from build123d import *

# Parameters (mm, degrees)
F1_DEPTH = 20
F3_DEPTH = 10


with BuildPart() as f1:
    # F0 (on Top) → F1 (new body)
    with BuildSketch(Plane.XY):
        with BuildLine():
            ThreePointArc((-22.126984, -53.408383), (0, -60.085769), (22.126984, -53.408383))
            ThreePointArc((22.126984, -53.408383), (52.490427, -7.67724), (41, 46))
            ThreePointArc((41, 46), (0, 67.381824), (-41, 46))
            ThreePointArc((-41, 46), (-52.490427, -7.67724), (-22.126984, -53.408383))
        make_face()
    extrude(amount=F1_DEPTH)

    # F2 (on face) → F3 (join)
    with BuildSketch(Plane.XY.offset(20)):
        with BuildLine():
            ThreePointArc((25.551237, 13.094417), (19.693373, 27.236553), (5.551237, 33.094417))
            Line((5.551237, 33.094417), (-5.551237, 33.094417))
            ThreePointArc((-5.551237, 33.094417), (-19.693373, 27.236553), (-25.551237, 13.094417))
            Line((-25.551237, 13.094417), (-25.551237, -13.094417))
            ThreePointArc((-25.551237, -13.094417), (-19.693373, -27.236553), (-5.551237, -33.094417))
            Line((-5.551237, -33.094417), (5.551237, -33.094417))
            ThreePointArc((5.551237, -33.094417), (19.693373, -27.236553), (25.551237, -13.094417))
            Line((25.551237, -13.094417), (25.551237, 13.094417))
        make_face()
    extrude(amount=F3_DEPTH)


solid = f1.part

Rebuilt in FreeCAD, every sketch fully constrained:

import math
import FreeCAD as App
import Part
import Sketcher

V = App.Vector

doc = App.newDocument("Part")
body = doc.addObject("PartDesign::Body", "Body")

sketch1 = doc.addObject("Sketcher::SketchObject", "Sketch")
body.addObject(sketch1)
sketch1.AttachmentSupport = (doc.XY_Plane, [""])
sketch1.MapMode = "FlatFace"
sketch1.addGeometry(Part.ArcOfCircle(Part.Circle(V(0, -20, 0), V(0, 0, 1), 40), math.radians(-124), math.radians(-56)), False)
sketch1.addGeometry(Part.ArcOfCircle(Part.Circle(V(-17, 6, 0), V(0, 0, 1), 71), math.radians(-56), math.radians(35)), False)
sketch1.addGeometry(Part.ArcOfCircle(Part.Circle(V(0, 17, 0), V(0, 0, 1), 50), math.radians(35), math.radians(145)), False)
sketch1.addGeometry(Part.ArcOfCircle(Part.Circle(V(17, 6, 0), V(0, 0, 1), 71), math.radians(145), math.radians(236)), False)
sketch1.addConstraint(Sketcher.Constraint("Tangent", 0, 2, 1, 1))
sketch1.addConstraint(Sketcher.Constraint("Tangent", 1, 2, 2, 1))
sketch1.addConstraint(Sketcher.Constraint("Tangent", 2, 2, 3, 1))
sketch1.addConstraint(Sketcher.Constraint("Tangent", 3, 2, 0, 1))
sketch1.addConstraint(Sketcher.Constraint("Equal", 1, 3))
sketch1.addConstraint(Sketcher.Constraint("Symmetric", 1, 3, 3, 3, -2))
sketch1.addConstraint(Sketcher.Constraint("Radius", 0, 40.000002))
sketch1.addConstraint(Sketcher.Constraint("Radius", 2, 50.0))
sketch1.addConstraint(Sketcher.Constraint("DistanceX", 1, 3, -1, 1, 16.999999))
sketch1.addConstraint(Sketcher.Constraint("DistanceX", -1, 1, 1, 2, 41.0))
sketch1.addConstraint(Sketcher.Constraint("DistanceY", -1, 1, 1, 2, 46.0))
pad1 = doc.addObject("PartDesign::Pad", "Pad")
body.addObject(pad1)
pad1.Profile = sketch1
pad1.Length = 20

sketch2 = doc.addObject("Sketcher::SketchObject", "Sketch001")
body.addObject(sketch2)
sketch2.AttachmentSupport = (doc.XY_Plane, [""])
sketch2.MapMode = "FlatFace"
sketch2.AttachmentOffset = App.Placement(V(0, 0, 20), App.Rotation())
sketch2.addGeometry(Part.ArcOfCircle(Part.Circle(V(6, 13, 0), V(0, 0, 1), 20), math.radians(0), math.radians(90)), False)
sketch2.addGeometry(Part.LineSegment(V(6, 33, 0), V(-6, 33, 0)), False)
sketch2.addGeometry(Part.ArcOfCircle(Part.Circle(V(-6, 13, 0), V(0, 0, 1), 20), math.radians(90), math.radians(180)), False)
sketch2.addGeometry(Part.LineSegment(V(-26, 13, 0), V(-26, -13, 0)), False)
sketch2.addGeometry(Part.ArcOfCircle(Part.Circle(V(-6, -13, 0), V(0, 0, 1), 20), math.radians(180), math.radians(270)), False)
sketch2.addGeometry(Part.LineSegment(V(-6, -33, 0), V(6, -33, 0)), False)
sketch2.addGeometry(Part.ArcOfCircle(Part.Circle(V(6, -13, 0), V(0, 0, 1), 20), math.radians(-90), math.radians(0)), False)
sketch2.addGeometry(Part.LineSegment(V(26, -13, 0), V(26, 13, 0)), False)
sketch2.addConstraint(Sketcher.Constraint("Tangent", 0, 2, 1, 1))
sketch2.addConstraint(Sketcher.Constraint("Tangent", 1, 2, 2, 1))
sketch2.addConstraint(Sketcher.Constraint("Tangent", 2, 2, 3, 1))
sketch2.addConstraint(Sketcher.Constraint("Tangent", 3, 2, 4, 1))
sketch2.addConstraint(Sketcher.Constraint("Tangent", 4, 2, 5, 1))
sketch2.addConstraint(Sketcher.Constraint("Tangent", 5, 2, 6, 1))
sketch2.addConstraint(Sketcher.Constraint("Tangent", 6, 2, 7, 1))
sketch2.addConstraint(Sketcher.Constraint("Tangent", 7, 2, 0, 1))
sketch2.addConstraint(Sketcher.Constraint("Horizontal", 1))
sketch2.addConstraint(Sketcher.Constraint("Vertical", 3))
sketch2.addConstraint(Sketcher.Constraint("Horizontal", 5))
sketch2.addConstraint(Sketcher.Constraint("Vertical", 7))
sketch2.addConstraint(Sketcher.Constraint("Equal", 0, 2))
sketch2.addConstraint(Sketcher.Constraint("Equal", 2, 4))
sketch2.addConstraint(Sketcher.Constraint("Equal", 4, 6))
sketch2.addConstraint(Sketcher.Constraint("Symmetric", 0, 3, 4, 3, -1, 1))
sketch2.addConstraint(Sketcher.Constraint("Radius", 0, 19.999999))
sketch2.addConstraint(Sketcher.Constraint("DistanceX", 1, 2, 1, 1, 11.102474))
sketch2.addConstraint(Sketcher.Constraint("DistanceY", 3, 2, 3, 1, 26.188834))
pad2 = doc.addObject("PartDesign::Pad", "Pad001")
body.addObject(pad2)
pad2.Profile = sketch2
pad2.Length = 10

doc.recompute()
